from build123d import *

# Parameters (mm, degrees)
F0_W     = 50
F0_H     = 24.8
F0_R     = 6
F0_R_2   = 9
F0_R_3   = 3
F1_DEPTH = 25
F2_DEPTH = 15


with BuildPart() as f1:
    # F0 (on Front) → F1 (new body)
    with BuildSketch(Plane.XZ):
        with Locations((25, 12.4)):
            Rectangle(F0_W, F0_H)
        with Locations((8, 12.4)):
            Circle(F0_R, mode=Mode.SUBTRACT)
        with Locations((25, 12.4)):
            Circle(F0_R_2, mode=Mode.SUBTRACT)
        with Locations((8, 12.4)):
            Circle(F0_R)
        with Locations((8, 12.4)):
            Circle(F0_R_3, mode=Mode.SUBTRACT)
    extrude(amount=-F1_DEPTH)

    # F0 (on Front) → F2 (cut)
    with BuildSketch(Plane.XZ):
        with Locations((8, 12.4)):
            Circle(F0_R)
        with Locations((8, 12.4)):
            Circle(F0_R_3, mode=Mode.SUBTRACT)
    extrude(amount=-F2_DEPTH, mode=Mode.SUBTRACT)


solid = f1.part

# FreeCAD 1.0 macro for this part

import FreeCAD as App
import Part
import Sketcher

V = App.Vector

doc = App.newDocument("Part")
body = doc.addObject("PartDesign::Body", "Body")

# Sketch on XZ plane
sketch1 = body.newObject("Sketcher::SketchObject", "Sketch")
sketch1.AttachmentSupport = (doc.getObject("XZ_Plane"), [""])
sketch1.MapMode = "FlatFace"
sketch1.addGeometry([
    Part.LineSegment(V(0, 24.8, 0), V(0, 0, 0)),  # 0
    Part.LineSegment(V(0, 0, 0), V(50, 0, 0)),  # 1
    Part.LineSegment(V(50, 0, 0), V(50, 24.8, 0)),  # 2
    Part.LineSegment(V(50, 24.8, 0), V(0, 24.8, 0)),  # 3
    Part.Circle(V(8, 12.4, 0), V(0, 0, 1), 3),  # 4
    Part.Circle(V(25, 12.4, 0), V(0, 0, 1), 9),  # 5
], False)
sketch1.addConstraint([
    Sketcher.Constraint("Coincident", 0, 2, 1, 1),
    Sketcher.Constraint("Coincident", 1, 2, 2, 1),
    Sketcher.Constraint("Coincident", 2, 2, 3, 1),
    Sketcher.Constraint("Coincident", 3, 2, 0, 1),
    Sketcher.Constraint("Vertical", 0),
    Sketcher.Constraint("Horizontal", 1),
    Sketcher.Constraint("Vertical", 2),
    Sketcher.Constraint("Horizontal", 3),
    Sketcher.Constraint("Coincident", 0, 2, -1, 1),
    Sketcher.Constraint("Horizontal", 4, 3, 5, 3),
    Sketcher.Constraint("Diameter", 4, 6.0),
    Sketcher.Constraint("Diameter", 5, 18.0),
    Sketcher.Constraint("DistanceX", 1, 1, 1, 2, 50.0),
    Sketcher.Constraint("DistanceY", 0, 2, 0, 1, 24.8),
    Sketcher.Constraint("DistanceX", -1, 1, 4, 3, 8.0),
    Sketcher.Constraint("DistanceX", -1, 1, 5, 3, 25.0),
    Sketcher.Constraint("DistanceY", -1, 1, 4, 3, 12.4),
])
pad1 = body.newObject("PartDesign::Pad", "Pad")
pad1.Profile = sketch1
pad1.Length = 25
pad1.Reversed = True

# Sketch on XZ plane
sketch2 = body.newObject("Sketcher::SketchObject", "Sketch001")
sketch2.AttachmentSupport = (doc.getObject("XZ_Plane"), [""])
sketch2.MapMode = "FlatFace"
sketch2.addGeometry([
    Part.Circle(V(8, 12.4, 0), V(0, 0, 1), 6),
    Part.Circle(V(8, 12.4, 0), V(0, 0, 1), 3),
], False)
sketch2.addConstraint([
    Sketcher.Constraint("Coincident", 1, 3, 0, 3),
    Sketcher.Constraint("Diameter", 0, 12.0),
    Sketcher.Constraint("Diameter", 1, 6.0),
    Sketcher.Constraint("DistanceX", -1, 1, 0, 3, 8.0),
    Sketcher.Constraint("DistanceY", -1, 1, 0, 3, 12.4),
])
pocket1 = body.newObject("PartDesign::Pocket", "Pocket")
pocket1.Profile = sketch2
pocket1.Length = 15

doc.recompute()
